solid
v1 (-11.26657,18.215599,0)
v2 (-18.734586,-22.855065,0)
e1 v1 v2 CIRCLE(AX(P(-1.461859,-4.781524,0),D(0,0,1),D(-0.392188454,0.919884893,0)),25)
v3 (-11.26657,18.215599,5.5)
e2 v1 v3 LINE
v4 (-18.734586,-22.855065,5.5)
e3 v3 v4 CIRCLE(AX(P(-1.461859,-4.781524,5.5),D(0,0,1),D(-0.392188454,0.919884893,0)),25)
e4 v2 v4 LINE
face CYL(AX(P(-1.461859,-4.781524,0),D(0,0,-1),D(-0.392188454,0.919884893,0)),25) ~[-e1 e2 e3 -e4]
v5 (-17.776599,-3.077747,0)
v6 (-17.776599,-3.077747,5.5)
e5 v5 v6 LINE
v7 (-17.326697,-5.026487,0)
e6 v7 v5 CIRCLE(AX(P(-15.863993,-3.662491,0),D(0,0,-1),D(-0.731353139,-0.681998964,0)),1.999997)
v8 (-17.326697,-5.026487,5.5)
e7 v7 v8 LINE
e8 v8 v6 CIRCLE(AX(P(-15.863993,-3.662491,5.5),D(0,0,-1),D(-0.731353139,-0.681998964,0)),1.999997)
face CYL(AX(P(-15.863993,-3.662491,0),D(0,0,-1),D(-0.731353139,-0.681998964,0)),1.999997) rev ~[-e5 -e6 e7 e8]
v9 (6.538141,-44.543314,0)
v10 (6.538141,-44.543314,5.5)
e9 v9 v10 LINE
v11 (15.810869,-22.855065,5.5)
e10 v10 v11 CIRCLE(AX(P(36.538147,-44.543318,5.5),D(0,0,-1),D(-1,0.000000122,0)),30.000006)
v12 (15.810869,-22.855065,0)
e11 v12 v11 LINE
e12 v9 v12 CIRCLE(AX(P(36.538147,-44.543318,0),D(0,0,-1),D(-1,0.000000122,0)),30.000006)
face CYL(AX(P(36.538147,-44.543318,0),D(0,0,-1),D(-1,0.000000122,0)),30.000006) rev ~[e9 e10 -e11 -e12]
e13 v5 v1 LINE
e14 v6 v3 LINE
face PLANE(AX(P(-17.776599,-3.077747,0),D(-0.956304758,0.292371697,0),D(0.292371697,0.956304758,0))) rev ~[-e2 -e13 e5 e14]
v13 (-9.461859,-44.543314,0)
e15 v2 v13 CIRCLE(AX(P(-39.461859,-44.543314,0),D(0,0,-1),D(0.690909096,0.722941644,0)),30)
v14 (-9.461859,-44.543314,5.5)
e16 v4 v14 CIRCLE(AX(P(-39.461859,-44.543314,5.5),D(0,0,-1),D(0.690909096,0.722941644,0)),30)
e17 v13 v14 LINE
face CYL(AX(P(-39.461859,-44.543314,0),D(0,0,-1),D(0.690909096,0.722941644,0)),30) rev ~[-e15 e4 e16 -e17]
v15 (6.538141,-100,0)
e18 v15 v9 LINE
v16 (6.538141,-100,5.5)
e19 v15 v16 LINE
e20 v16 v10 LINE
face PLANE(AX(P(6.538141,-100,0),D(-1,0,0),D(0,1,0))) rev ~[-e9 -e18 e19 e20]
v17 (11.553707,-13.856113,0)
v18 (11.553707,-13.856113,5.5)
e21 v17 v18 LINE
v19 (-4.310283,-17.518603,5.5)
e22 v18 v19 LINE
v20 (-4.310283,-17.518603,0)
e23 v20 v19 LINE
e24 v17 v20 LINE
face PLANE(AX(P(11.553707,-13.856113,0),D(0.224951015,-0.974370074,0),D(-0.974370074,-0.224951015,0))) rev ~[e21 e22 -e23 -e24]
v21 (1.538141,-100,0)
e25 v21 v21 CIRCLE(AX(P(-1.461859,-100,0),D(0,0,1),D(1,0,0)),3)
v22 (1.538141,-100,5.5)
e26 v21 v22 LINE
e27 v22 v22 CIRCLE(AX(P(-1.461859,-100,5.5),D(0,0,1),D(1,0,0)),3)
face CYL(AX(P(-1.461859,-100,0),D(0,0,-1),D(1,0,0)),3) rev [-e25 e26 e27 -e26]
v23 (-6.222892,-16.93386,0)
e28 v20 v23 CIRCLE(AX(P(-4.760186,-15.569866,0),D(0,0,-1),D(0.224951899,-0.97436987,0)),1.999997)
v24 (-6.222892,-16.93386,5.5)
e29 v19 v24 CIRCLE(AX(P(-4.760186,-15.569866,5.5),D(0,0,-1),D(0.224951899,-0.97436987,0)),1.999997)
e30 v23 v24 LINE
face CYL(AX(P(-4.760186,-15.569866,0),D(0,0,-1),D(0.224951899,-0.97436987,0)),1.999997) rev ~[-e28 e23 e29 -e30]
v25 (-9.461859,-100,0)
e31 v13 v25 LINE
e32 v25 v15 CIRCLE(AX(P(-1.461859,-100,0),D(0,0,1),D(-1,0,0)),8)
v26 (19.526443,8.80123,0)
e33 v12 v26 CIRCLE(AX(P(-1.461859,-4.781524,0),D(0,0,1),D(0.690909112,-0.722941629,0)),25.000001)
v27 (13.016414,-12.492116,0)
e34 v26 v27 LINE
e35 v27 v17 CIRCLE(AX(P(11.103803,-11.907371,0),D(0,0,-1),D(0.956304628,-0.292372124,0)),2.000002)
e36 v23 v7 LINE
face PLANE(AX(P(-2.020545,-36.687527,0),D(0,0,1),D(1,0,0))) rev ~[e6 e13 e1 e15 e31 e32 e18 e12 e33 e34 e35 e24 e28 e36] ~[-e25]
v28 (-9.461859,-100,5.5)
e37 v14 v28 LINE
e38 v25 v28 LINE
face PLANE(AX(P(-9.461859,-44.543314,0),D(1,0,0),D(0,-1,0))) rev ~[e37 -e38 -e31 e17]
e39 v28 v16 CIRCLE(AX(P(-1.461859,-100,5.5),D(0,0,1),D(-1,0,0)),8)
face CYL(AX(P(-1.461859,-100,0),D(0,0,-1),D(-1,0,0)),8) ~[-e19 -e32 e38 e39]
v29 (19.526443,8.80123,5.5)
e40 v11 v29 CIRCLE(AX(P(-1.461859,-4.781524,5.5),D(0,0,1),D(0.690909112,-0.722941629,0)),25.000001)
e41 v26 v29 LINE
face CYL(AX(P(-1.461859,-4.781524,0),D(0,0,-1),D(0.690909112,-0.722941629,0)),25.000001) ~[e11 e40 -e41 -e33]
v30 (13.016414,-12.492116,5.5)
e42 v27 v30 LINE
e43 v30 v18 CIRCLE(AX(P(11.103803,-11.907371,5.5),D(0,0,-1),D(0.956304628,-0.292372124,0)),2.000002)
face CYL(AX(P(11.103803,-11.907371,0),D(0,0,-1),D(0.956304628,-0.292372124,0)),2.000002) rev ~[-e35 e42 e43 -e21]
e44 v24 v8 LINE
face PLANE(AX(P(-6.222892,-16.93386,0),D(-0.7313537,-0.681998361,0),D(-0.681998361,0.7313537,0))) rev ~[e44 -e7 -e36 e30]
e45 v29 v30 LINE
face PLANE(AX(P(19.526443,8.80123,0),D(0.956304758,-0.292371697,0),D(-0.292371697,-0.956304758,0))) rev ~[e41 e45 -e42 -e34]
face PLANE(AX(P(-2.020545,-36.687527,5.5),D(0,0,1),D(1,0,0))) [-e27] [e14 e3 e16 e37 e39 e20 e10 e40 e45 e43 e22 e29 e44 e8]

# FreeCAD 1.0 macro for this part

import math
import FreeCAD as App
import Part
import Sketcher

V = App.Vector
Q = App.Units.Quantity

doc = App.newDocument("Part")
body = doc.addObject("PartDesign::Body", "Body")

sketch1 = body.newObject("Sketcher::SketchObject", "Sketch")
sketch1.AttachmentSupport = (doc.getObject("XY_Plane"), [""])
sketch1.MapMode = "FlatFace"
sketch1.addGeometry([
    Part.ArcOfCircle(Part.Circle(V(-1.5, -4.8, 0), V(0, 0, 1), 25), math.radians(-46), math.radians(33)),
    Part.LineSegment(V(19.5, 8.8, 0), V(13, -12.5, 0)),
    Part.ArcOfCircle(Part.Circle(V(11.1, -11.9, 0), V(0, 0, 1), 2), math.radians(-77), math.radians(-17)),
    Part.LineSegment(V(11.6, -13.9, 0), V(-4.3, -17.5, 0)),
    Part.ArcOfCircle(Part.Circle(V(-4.8, -15.6, 0), V(0, 0, 1), 2), math.radians(-137), math.radians(-77)),
    Part.LineSegment(V(-6.2, -16.9, 0), V(-17.3, -5, 0)),
    Part.ArcOfCircle(Part.Circle(V(-15.9, -3.7, 0), V(0, 0, 1), 2), math.radians(163), math.radians(223)),
    Part.LineSegment(V(-17.8, -3.1, 0), V(-11.3, 18.2, 0)),
    Part.ArcOfCircle(Part.Circle(V(-1.5, -4.8, 0), V(0, 0, 1), 25), math.radians(113), math.radians(226)),
    Part.ArcOfCircle(Part.Circle(V(-39.5, -44.5, 0), V(0, 0, 1), 30), math.radians(0), math.radians(46)),
    Part.LineSegment(V(-9.5, -44.5, 0), V(-9.5, -100, 0)),
    Part.ArcOfCircle(Part.Circle(V(-1.5, -100, 0), V(0, 0, 1), 8), math.radians(180), math.radians(360)),
    Part.LineSegment(V(6.5, -100, 0), V(6.5, -44.5, 0)),
    Part.ArcOfCircle(Part.Circle(V(36.5, -44.5, 0), V(0, 0, 1), 30), math.radians(134), math.radians(180)),
    Part.Circle(V(-1.5, -100, 0), V(0, 0, 1), 3),
], False)
sketch1.addConstraint([
    Sketcher.Constraint("Coincident", 0, 2, 1, 1),
    Sketcher.Constraint("Tangent", 1, 2, 2, 2),
    Sketcher.Constraint("Tangent", 2, 1, 3, 1),
    Sketcher.Constraint("Tangent", 3, 2, 4, 2),
    Sketcher.Constraint("Tangent", 4, 1, 5, 1),
    Sketcher.Constraint("Tangent", 5, 2, 6, 2),
    Sketcher.Constraint("Tangent", 6, 1, 7, 1),
    Sketcher.Constraint("Coincident", 7, 2, 8, 1),
    Sketcher.Constraint("Tangent", 8, 2, 9, 2),
    Sketcher.Constraint("Tangent", 9, 1, 10, 1),
    Sketcher.Constraint("Tangent", 10, 2, 11, 1),
    Sketcher.Constraint("Tangent", 11, 2, 12, 1),
    Sketcher.Constraint("Tangent", 12, 2, 13, 2),
    Sketcher.Constraint("Tangent", 13, 1, 0, 1),
    Sketcher.Constraint("Vertical", 10),
    Sketcher.Constraint("Vertical", 12),
    Sketcher.Constraint("Coincident", 8, 3, 0, 3),
    Sketcher.Constraint("Coincident", 14, 3, 11, 3),
    Sketcher.Constraint("Equal", 4, 6),
    Sketcher.Constraint("Equal", 0, 8),
    Sketcher.Constraint("Parallel", 1, 7),
    Sketcher.Constraint("Horizontal", 9, 1, 12, 2),
    Sketcher.Constraint("Horizontal", 8, 2, 13, 1),
    Sketcher.Constraint("Equal", 3, 5),
    Sketcher.Constraint("Equal", 1, 7),
    Sketcher.Constraint("Diameter", 14, Q("6 mm")),
    Sketcher.Constraint("Radius", 0, Q("25.000001 mm")),
    Sketcher.Constraint("Radius", 9, Q("30 mm")),
    Sketcher.Constraint("Radius", 11, Q("8 mm")),
    Sketcher.Constraint("Angle", 1, Q("-107 deg")),
    Sketcher.Constraint("Angle", 3, Q("-167.000002 deg")),
    Sketcher.Constraint("Angle", 5, Q("133 deg")),
    Sketcher.Constraint("DistanceY", 11, 3, -1, 1, Q("100 mm")),
    Sketcher.Constraint("Radius", 2, Q("2.000002 mm")),
    Sketcher.Constraint("Radius", 4, Q("1.999997 mm")),
    Sketcher.Constraint("DistanceX", 6, 1, -1, 1, Q("17.776599 mm")),
    Sketcher.Constraint("DistanceY", -1, 1, 7, 2, Q("18.215599 mm")),
    Sketcher.Constraint("DistanceY", 2, 3, 0, 2, Q("20.708601 mm")),
    Sketcher.Constraint("DistanceX", 8, 3, 0, 2, Q("20.988302 mm")),
])
pad1 = body.newObject("PartDesign::Pad", "Pad")
pad1.Profile = sketch1
pad1.Length = 5.5

doc.recompute()
